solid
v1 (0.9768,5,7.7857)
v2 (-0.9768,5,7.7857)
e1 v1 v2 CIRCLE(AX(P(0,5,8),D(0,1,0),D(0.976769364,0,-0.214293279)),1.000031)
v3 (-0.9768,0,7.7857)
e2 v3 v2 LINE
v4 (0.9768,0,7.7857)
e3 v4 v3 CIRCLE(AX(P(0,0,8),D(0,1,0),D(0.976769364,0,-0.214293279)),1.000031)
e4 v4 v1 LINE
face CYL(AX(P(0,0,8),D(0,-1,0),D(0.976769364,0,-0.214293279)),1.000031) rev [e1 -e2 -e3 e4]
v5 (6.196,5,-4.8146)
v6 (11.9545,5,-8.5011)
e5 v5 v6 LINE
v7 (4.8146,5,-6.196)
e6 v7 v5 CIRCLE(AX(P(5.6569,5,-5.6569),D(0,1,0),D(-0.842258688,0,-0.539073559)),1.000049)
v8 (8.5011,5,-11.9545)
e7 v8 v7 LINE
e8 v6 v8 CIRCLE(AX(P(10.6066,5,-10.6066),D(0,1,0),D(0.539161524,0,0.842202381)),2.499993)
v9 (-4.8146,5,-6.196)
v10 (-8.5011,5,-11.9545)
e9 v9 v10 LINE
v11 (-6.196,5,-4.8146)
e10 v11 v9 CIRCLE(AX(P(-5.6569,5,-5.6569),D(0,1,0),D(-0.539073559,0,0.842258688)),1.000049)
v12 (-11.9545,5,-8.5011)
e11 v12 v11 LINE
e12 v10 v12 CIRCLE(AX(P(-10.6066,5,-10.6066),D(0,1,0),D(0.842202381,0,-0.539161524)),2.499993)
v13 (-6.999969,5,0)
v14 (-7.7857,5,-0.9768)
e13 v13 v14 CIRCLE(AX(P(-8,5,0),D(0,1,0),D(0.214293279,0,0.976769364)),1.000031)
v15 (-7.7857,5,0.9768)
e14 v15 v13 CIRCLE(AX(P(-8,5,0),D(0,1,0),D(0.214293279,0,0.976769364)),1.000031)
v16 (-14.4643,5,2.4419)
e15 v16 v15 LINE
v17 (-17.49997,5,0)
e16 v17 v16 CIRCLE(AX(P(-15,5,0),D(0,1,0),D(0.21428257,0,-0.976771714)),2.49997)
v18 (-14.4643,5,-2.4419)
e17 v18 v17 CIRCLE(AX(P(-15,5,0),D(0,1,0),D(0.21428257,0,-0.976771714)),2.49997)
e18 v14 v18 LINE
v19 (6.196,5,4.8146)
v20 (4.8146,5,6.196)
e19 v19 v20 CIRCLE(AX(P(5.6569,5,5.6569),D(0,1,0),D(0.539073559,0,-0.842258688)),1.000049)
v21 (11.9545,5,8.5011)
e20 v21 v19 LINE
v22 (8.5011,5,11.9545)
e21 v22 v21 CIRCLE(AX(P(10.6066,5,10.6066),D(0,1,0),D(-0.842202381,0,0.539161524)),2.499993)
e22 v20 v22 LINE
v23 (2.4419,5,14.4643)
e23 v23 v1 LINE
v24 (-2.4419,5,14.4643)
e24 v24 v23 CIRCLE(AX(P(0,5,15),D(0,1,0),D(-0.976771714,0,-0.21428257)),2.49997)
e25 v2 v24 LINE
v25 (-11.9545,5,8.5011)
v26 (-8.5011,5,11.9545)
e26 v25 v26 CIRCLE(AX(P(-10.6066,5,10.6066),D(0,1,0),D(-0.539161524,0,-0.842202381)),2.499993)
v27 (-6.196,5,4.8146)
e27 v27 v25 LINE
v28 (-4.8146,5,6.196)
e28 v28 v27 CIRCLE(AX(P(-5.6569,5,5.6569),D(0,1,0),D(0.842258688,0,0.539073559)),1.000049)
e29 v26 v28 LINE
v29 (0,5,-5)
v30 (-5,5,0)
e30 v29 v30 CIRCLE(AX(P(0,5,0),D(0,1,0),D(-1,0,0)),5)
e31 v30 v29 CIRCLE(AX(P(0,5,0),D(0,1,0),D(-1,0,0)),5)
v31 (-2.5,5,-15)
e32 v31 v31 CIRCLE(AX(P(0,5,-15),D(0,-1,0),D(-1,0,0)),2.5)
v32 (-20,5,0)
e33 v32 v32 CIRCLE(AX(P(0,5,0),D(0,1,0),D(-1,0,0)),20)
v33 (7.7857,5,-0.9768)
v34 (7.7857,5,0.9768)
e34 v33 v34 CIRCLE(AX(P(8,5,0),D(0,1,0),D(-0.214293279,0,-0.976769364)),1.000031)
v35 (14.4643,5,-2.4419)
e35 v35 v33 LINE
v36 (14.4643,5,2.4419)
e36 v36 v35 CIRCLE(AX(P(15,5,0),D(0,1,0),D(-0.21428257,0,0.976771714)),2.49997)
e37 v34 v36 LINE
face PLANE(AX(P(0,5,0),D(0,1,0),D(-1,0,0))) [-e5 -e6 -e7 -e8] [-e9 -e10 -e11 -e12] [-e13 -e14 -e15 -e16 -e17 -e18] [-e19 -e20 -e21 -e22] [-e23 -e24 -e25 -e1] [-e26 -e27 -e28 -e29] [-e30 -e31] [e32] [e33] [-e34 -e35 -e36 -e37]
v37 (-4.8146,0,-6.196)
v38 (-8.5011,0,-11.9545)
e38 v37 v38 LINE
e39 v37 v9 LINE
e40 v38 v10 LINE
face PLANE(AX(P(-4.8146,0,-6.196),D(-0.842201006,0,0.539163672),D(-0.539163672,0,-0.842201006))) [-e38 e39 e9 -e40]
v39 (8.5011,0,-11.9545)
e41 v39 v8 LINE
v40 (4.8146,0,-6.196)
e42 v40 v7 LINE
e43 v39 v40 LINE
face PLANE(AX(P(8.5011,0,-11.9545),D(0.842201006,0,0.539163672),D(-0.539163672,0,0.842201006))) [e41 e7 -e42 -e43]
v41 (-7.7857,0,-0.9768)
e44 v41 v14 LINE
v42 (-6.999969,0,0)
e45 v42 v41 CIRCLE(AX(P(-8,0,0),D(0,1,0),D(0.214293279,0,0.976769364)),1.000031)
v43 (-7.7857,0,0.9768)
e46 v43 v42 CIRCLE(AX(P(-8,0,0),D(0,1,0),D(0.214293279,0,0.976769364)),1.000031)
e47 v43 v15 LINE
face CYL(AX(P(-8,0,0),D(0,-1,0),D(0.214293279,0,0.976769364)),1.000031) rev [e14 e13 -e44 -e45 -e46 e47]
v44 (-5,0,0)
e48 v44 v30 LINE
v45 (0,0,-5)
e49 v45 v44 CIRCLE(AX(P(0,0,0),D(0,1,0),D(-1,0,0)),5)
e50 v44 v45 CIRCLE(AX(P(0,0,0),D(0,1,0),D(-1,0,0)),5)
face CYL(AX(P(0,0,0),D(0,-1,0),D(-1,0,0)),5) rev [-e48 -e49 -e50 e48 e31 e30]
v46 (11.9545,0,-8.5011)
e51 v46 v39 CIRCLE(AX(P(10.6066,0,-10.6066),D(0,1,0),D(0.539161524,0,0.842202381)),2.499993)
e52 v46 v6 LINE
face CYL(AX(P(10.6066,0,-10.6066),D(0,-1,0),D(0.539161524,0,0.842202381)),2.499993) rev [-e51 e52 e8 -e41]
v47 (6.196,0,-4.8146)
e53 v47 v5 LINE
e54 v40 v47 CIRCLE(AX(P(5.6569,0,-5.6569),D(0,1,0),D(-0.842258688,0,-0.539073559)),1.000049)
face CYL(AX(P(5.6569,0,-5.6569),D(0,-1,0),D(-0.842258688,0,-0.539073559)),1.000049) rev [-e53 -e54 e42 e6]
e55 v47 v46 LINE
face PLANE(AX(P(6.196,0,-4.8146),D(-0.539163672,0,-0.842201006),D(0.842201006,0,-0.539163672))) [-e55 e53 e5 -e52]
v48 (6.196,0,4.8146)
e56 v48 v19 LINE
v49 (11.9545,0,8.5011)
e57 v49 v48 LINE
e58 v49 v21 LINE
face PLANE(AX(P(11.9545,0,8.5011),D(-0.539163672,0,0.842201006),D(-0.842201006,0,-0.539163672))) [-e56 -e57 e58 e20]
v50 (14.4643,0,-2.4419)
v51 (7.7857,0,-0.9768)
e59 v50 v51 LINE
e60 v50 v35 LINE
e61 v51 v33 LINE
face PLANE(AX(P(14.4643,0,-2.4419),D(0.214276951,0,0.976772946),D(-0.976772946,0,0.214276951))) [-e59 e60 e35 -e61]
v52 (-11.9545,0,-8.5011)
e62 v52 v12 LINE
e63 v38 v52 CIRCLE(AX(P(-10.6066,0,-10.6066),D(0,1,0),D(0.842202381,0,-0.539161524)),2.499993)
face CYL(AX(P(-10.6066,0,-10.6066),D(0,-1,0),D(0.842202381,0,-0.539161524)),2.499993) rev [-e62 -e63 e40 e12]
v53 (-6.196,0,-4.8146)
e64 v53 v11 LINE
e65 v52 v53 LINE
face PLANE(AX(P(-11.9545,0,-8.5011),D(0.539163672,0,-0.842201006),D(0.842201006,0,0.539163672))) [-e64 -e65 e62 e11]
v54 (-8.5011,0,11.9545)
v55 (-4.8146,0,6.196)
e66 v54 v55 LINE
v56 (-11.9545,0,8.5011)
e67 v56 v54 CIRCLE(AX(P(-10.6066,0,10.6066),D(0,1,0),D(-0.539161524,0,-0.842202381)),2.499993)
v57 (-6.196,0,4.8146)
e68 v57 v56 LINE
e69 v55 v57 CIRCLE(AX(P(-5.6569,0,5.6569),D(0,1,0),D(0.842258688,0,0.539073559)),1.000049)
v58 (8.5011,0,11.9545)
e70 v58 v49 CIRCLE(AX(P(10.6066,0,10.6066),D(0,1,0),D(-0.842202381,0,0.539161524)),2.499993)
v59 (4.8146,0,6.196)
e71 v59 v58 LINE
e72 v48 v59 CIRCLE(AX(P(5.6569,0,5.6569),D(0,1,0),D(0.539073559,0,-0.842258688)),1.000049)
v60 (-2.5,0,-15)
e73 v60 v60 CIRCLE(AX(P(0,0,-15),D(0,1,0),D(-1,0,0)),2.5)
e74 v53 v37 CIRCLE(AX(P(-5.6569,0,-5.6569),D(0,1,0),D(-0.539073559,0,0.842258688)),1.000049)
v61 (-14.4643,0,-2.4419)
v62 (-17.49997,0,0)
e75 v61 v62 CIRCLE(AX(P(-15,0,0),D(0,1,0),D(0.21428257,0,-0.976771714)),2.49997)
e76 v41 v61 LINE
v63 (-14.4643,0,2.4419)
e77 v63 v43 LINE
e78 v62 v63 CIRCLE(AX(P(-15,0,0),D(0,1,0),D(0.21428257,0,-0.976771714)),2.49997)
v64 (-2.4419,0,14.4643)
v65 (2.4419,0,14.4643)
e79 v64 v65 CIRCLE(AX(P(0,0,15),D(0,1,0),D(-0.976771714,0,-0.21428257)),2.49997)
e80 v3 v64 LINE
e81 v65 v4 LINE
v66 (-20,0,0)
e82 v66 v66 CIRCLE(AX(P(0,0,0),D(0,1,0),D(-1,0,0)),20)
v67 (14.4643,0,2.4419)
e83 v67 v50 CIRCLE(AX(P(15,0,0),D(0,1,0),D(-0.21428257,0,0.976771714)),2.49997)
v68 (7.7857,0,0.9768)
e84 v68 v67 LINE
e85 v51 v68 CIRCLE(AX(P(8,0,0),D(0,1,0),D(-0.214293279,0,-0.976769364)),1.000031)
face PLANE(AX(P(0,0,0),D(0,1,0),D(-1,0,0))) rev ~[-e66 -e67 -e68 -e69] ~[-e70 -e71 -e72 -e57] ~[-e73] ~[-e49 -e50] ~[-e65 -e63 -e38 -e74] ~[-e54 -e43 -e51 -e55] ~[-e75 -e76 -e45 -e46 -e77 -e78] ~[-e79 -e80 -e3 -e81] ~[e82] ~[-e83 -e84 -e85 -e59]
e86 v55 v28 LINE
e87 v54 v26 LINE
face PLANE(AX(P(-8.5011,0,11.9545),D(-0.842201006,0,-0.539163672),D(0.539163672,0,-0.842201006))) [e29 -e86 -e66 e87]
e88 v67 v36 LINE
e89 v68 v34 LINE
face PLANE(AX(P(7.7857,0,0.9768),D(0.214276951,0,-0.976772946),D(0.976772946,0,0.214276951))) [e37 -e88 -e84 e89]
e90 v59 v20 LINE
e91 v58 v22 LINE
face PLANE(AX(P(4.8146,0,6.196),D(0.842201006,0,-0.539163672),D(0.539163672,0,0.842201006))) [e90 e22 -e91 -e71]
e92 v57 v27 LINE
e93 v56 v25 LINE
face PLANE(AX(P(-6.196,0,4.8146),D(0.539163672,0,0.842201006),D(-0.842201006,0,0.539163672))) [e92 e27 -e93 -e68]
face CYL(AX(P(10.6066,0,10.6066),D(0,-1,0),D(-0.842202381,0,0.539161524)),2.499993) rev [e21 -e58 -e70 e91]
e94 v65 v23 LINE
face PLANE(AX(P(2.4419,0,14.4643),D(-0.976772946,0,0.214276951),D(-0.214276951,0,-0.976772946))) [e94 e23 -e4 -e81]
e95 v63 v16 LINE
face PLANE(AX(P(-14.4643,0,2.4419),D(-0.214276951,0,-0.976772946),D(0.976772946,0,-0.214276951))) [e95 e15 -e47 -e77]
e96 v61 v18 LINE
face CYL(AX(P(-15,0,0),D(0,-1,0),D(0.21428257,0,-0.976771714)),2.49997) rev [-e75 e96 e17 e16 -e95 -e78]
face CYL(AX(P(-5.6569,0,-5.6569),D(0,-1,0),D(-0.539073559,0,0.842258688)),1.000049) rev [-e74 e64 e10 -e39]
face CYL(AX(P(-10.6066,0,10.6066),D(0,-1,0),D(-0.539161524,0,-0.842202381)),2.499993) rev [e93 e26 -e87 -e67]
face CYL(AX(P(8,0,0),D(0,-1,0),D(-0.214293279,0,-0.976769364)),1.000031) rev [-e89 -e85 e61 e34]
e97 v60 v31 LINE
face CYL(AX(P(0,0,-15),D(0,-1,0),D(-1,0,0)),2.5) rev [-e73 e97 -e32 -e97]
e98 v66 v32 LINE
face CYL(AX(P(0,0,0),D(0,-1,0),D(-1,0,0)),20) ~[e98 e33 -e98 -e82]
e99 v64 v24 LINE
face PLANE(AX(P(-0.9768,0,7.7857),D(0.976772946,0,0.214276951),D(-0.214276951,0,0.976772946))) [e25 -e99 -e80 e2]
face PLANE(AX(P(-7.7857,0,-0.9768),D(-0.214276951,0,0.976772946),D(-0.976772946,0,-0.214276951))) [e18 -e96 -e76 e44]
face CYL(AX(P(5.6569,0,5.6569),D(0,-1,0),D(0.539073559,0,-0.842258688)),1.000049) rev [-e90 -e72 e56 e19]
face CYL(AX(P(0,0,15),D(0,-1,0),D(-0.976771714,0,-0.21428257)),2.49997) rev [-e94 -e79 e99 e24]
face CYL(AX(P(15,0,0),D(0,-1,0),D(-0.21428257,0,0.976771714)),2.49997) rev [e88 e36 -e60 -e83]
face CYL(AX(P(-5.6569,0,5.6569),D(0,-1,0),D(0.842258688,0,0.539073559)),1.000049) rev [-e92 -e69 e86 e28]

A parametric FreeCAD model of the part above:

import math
import FreeCAD as App
import Part
import Sketcher
from FreeCAD import Vector

doc = App.newDocument("Part")
body = doc.addObject("PartDesign::Body", "Body")

sketch1 = body.newObject("Sketcher::SketchObject", "Sketch")
sketch1.AttachmentSupport = (doc.getObject("XZ_Plane"), [""])
sketch1.MapMode = "FlatFace"
sketch1.addGeometry(Part.Circle(Vector(0, 0, 0), Vector(0, 0, 1), 20), False)
sketch1.addGeometry(Part.ArcOfCircle(Part.Circle(Vector(10.6, -10.6, 0), Vector(0, 0, 1), 2.5), math.radians(-147), math.radians(57)), False)
sketch1.addGeometry(Part.LineSegment(Vector(12, -8.5, 0), Vector(6.2, -4.8, 0)), False)
sketch1.addGeometry(Part.ArcOfCircle(Part.Circle(Vector(5.7, -5.7, 0), Vector(0, 0, 1), 1), math.radians(57), math.radians(213)), False)
sketch1.addGeometry(Part.LineSegment(Vector(4.8, -6.2, 0), Vector(8.5, -12, 0)), False)
sketch1.addGeometry(Part.Circle(Vector(0, -15, 0), Vector(0, 0, 1), 2.5), False)
sketch1.addGeometry(Part.ArcOfCircle(Part.Circle(Vector(-10.6, -10.6, 0), Vector(0, 0, 1), 2.5), math.radians(123), math.radians(327)), False)
sketch1.addGeometry(Part.LineSegment(Vector(-8.5, -12, 0), Vector(-4.8, -6.2, 0)), False)
sketch1.addGeometry(Part.ArcOfCircle(Part.Circle(Vector(-5.7, -5.7, 0), Vector(0, 0, 1), 1), math.radians(-33), math.radians(123)), False)
sketch1.addGeometry(Part.LineSegment(Vector(-6.2, -4.8, 0), Vector(-12, -8.5, 0)), False)
sketch1.addGeometry(Part.ArcOfCircle(Part.Circle(Vector(15, 0, 0), Vector(0, 0, 1), 2.5), math.radians(-102), math.radians(102)), False)
sketch1.addGeometry(Part.LineSegment(Vector(14.5, 2.4, 0), Vector(7.8, 1, 0)), False)
sketch1.addGeometry(Part.ArcOfCircle(Part.Circle(Vector(8, 0, 0), Vector(0, 0, 1), 1), math.radians(102), math.radians(258)), False)
sketch1.addGeometry(Part.LineSegment(Vector(7.8, -1, 0), Vector(14.5, -2.4, 0)), False)
sketch1.addGeometry(Part.ArcOfCircle(Part.Circle(Vector(10.6, 10.6, 0), Vector(0, 0, 1), 2.5), math.radians(-57), math.radians(147)), False)
sketch1.addGeometry(Part.LineSegment(Vector(8.5, 12, 0), Vector(4.8, 6.2, 0)), False)
sketch1.addGeometry(Part.ArcOfCircle(Part.Circle(Vector(5.7, 5.7, 0), Vector(0, 0, 1), 1), math.radians(147), math.radians(303)), False)
sketch1.addGeometry(Part.LineSegment(Vector(6.2, 4.8, 0), Vector(12, 8.5, 0)), False)
sketch1.addGeometry(Part.ArcOfCircle(Part.Circle(Vector(0, 0, 0), Vector(0, 0, 1), 5), math.radians(-90), math.radians(180)), False)
sketch1.addGeometry(Part.ArcOfCircle(Part.Circle(Vector(0, 0, 0), Vector(0, 0, 1), 5), math.radians(180), math.radians(270)), False)
sketch1.addGeometry(Part.ArcOfCircle(Part.Circle(Vector(-10.6, 10.6, 0), Vector(0, 0, 1), 2.5), math.radians(33), math.radians(237)), False)
sketch1.addGeometry(Part.LineSegment(Vector(-12, 8.5, 0), Vector(-6.2, 4.8, 0)), False)
sketch1.addGeometry(Part.ArcOfCircle(Part.Circle(Vector(-5.7, 5.7, 0), Vector(0, 0, 1), 1), math.radians(-123), math.radians(33)), False)
sketch1.addGeometry(Part.LineSegment(Vector(-4.8, 6.2, 0), Vector(-8.5, 12, 0)), False)
sketch1.addGeometry(Part.ArcOfCircle(Part.Circle(Vector(-15, 0, 0), Vector(0, 0, 1), 2.5), math.radians(78), math.radians(180)), False)
sketch1.addGeometry(Part.ArcOfCircle(Part.Circle(Vector(-15, 0, 0), Vector(0, 0, 1), 2.5), math.radians(180), math.radians(282)), False)
sketch1.addGeometry(Part.LineSegment(Vector(-14.5, -2.4, 0), Vector(-7.8, -1, 0)), False)
sketch1.addGeometry(Part.ArcOfCircle(Part.Circle(Vector(-8, 0, 0), Vector(0, 0, 1), 1), math.radians(-78), math.radians(0)), False)
sketch1.addGeometry(Part.ArcOfCircle(Part.Circle(Vector(-8, 0, 0), Vector(0, 0, 1), 1), math.radians(0), math.radians(78)), False)
sketch1.addGeometry(Part.LineSegment(Vector(-7.8, 1, 0), Vector(-14.5, 2.4, 0)), False)
sketch1.addGeometry(Part.ArcOfCircle(Part.Circle(Vector(0, 15, 0), Vector(0, 0, 1), 2.5), math.radians(-12), math.radians(192)), False)
sketch1.addGeometry(Part.LineSegment(Vector(-2.4, 14.5, 0), Vector(-1, 7.8, 0)), False)
sketch1.addGeometry(Part.ArcOfCircle(Part.Circle(Vector(0, 8, 0), Vector(0, 0, 1), 1), math.radians(-168), math.radians(-12)), False)
sketch1.addGeometry(Part.LineSegment(Vector(1, 7.8, 0), Vector(2.4, 14.5, 0)), False)
sketch1.addConstraint(Sketcher.Constraint("Tangent", 1, 2, 2, 1))
sketch1.addConstraint(Sketcher.Constraint("Tangent", 2, 2, 3, 1))
sketch1.addConstraint(Sketcher.Constraint("Tangent", 3, 2, 4, 1))
sketch1.addConstraint(Sketcher.Constraint("Tangent", 4, 2, 1, 1))
sketch1.addConstraint(Sketcher.Constraint("Tangent", 6, 2, 7, 1))
sketch1.addConstraint(Sketcher.Constraint("Tangent", 7, 2, 8, 1))
sketch1.addConstraint(Sketcher.Constraint("Tangent", 8, 2, 9, 1))
sketch1.addConstraint(Sketcher.Constraint("Tangent", 9, 2, 6, 1))
sketch1.addConstraint(Sketcher.Constraint("Tangent", 10, 2, 11, 1))
sketch1.addConstraint(Sketcher.Constraint("Tangent", 11, 2, 12, 1))
sketch1.addConstraint(Sketcher.Constraint("Tangent", 12, 2, 13, 1))
sketch1.addConstraint(Sketcher.Constraint("Tangent", 13, 2, 10, 1))
sketch1.addConstraint(Sketcher.Constraint("Tangent", 14, 2, 15, 1))
sketch1.addConstraint(Sketcher.Constraint("Tangent", 15, 2, 16, 1))
sketch1.addConstraint(Sketcher.Constraint("Tangent", 16, 2, 17, 1))
sketch1.addConstraint(Sketcher.Constraint("Tangent", 17, 2, 14, 1))
sketch1.addConstraint(Sketcher.Constraint("Tangent", 18, 1, 19, 2))
sketch1.addConstraint(Sketcher.Constraint("Coincident", 19, 1, 18, 2))
sketch1.addConstraint(Sketcher.Constraint("Tangent", 20, 2, 21, 1))
sketch1.addConstraint(Sketcher.Constraint("Tangent", 21, 2, 22, 1))
sketch1.addConstraint(Sketcher.Constraint("Tangent", 22, 2, 23, 1))
sketch1.addConstraint(Sketcher.Constraint("Tangent", 23, 2, 20, 1))
sketch1.addConstraint(Sketcher.Constraint("Tangent", 24, 2, 25, 1))
sketch1.addConstraint(Sketcher.Constraint("Tangent", 25, 2, 26, 1))
sketch1.addConstraint(Sketcher.Constraint("Tangent", 26, 2, 27, 1))
sketch1.addConstraint(Sketcher.Constraint("Tangent", 27, 2, 28, 1))
sketch1.addConstraint(Sketcher.Constraint("Tangent", 28, 2, 29, 1))
sketch1.addConstraint(Sketcher.Constraint("Tangent", 29, 2, 24, 1))
sketch1.addConstraint(Sketcher.Constraint("Tangent", 30, 2, 31, 1))
sketch1.addConstraint(Sketcher.Constraint("Tangent", 31, 2, 32, 1))
sketch1.addConstraint(Sketcher.Constraint("Tangent", 32, 2, 33, 1))
sketch1.addConstraint(Sketcher.Constraint("Tangent", 33, 2, 30, 1))
sketch1.addConstraint(Sketcher.Constraint("Coincident", 0, 3, -1, 1))
sketch1.addConstraint(Sketcher.Constraint("Coincident", 18, 3, -1, 1))
sketch1.addConstraint(Sketcher.Constraint("Equal", 1, 5))
sketch1.addConstraint(Sketcher.Constraint("Equal", 5, 6))
sketch1.addConstraint(Sketcher.Constraint("Equal", 3, 8))
sketch1.addConstraint(Sketcher.Constraint("Equal", 6, 10))
sketch1.addConstraint(Sketcher.Constraint("Equal", 8, 12))
sketch1.addConstraint(Sketcher.Constraint("Equal", 10, 14))
sketch1.addConstraint(Sketcher.Constraint("Equal", 12, 16))
sketch1.addConstraint(Sketcher.Constraint("Equal", 14, 20))
sketch1.addConstraint(Sketcher.Constraint("Equal", 16, 22))
sketch1.addConstraint(Sketcher.Constraint("Equal", 20, 24))
sketch1.addConstraint(Sketcher.Constraint("Equal", 24, 25))
sketch1.addConstraint(Sketcher.Constraint("Equal", 22, 27))
sketch1.addConstraint(Sketcher.Constraint("Equal", 27, 28))
sketch1.addConstraint(Sketcher.Constraint("Equal", 25, 30))
sketch1.addConstraint(Sketcher.Constraint("Equal", 28, 32))
sketch1.addConstraint(Sketcher.Constraint("Symmetric", 6, 3, 14, 3, -1, 1))
sketch1.addConstraint(Sketcher.Constraint("Symmetric", 8, 3, 16, 3, -1, 1))
sketch1.addConstraint(Sketcher.Constraint("Symmetric", 1, 3, 20, 3, -1, 1))
sketch1.addConstraint(Sketcher.Constraint("Symmetric", 3, 3, 22, 3, -1, 1))
sketch1.addConstraint(Sketcher.Constraint("Symmetric", 10, 3, 24, 3, -1, 1))
sketch1.addConstraint(Sketcher.Constraint("Symmetric", 12, 3, 27, 3, -1, 1))
sketch1.addConstraint(Sketcher.Constraint("Symmetric", 5, 3, 30, 3, -1, 1))
sketch1.addConstraint(Sketcher.Constraint("Symmetric", 1, 3, 6, 3, -2))
sketch1.addConstraint(Sketcher.Constraint("Symmetric", 3, 3, 8, 3, -2))
sketch1.addConstraint(Sketcher.Constraint("Symmetric", 13, 2, 25, 2, -2))
sketch1.addConstraint(Sketcher.Constraint("Symmetric", 31, 2, 32, 2, -2))
sketch1.addConstraint(Sketcher.Constraint("PointOnObject", 18, 1, -2))
sketch1.addConstraint(Sketcher.Constraint("PointOnObject", 19, 1, -1))
sketch1.addConstraint(Sketcher.Constraint("PointOnObject", 24, 2, -1))
sketch1.addConstraint(Sketcher.Constraint("PointOnObject", 27, 2, -1))
sketch1.addConstraint(Sketcher.Constraint("Perpendicular", 2, 7))
sketch1.addConstraint(Sketcher.Constraint("Perpendicular", 26, 31))
sketch1.addConstraint(Sketcher.Constraint("Equal", 9, 11))
sketch1.addConstraint(Sketcher.Constraint("Diameter", 0, 40.0))
sketch1.addConstraint(Sketcher.Constraint("Diameter", 5, 5.0))
sketch1.addConstraint(Sketcher.Constraint("Radius", 3, 1.0))
sketch1.addConstraint(Sketcher.Constraint("Radius", 18, 5.0))
sketch1.addConstraint(Sketcher.Constraint("DistanceY", 5, 3, -1, 1, 15.0))
sketch1.addConstraint(Sketcher.Constraint("DistanceX", -1, 1, 10, 3, 15.0))
sketch1.addConstraint(Sketcher.Constraint("DistanceX", 27, 2, -1, 1, 7.0))
sketch1.addConstraint(Sketcher.Constraint("DistanceY", 11, 2, 16, 3, 4.68))
sketch1.addConstraint(Sketcher.Constraint("DistanceX", 22, 3, 31, 2, 4.68))
pad1 = body.newObject("PartDesign::Pad", "Pad")
pad1.Profile = sketch1
pad1.Length = 5
pad1.Reversed = True

doc.recompute()
